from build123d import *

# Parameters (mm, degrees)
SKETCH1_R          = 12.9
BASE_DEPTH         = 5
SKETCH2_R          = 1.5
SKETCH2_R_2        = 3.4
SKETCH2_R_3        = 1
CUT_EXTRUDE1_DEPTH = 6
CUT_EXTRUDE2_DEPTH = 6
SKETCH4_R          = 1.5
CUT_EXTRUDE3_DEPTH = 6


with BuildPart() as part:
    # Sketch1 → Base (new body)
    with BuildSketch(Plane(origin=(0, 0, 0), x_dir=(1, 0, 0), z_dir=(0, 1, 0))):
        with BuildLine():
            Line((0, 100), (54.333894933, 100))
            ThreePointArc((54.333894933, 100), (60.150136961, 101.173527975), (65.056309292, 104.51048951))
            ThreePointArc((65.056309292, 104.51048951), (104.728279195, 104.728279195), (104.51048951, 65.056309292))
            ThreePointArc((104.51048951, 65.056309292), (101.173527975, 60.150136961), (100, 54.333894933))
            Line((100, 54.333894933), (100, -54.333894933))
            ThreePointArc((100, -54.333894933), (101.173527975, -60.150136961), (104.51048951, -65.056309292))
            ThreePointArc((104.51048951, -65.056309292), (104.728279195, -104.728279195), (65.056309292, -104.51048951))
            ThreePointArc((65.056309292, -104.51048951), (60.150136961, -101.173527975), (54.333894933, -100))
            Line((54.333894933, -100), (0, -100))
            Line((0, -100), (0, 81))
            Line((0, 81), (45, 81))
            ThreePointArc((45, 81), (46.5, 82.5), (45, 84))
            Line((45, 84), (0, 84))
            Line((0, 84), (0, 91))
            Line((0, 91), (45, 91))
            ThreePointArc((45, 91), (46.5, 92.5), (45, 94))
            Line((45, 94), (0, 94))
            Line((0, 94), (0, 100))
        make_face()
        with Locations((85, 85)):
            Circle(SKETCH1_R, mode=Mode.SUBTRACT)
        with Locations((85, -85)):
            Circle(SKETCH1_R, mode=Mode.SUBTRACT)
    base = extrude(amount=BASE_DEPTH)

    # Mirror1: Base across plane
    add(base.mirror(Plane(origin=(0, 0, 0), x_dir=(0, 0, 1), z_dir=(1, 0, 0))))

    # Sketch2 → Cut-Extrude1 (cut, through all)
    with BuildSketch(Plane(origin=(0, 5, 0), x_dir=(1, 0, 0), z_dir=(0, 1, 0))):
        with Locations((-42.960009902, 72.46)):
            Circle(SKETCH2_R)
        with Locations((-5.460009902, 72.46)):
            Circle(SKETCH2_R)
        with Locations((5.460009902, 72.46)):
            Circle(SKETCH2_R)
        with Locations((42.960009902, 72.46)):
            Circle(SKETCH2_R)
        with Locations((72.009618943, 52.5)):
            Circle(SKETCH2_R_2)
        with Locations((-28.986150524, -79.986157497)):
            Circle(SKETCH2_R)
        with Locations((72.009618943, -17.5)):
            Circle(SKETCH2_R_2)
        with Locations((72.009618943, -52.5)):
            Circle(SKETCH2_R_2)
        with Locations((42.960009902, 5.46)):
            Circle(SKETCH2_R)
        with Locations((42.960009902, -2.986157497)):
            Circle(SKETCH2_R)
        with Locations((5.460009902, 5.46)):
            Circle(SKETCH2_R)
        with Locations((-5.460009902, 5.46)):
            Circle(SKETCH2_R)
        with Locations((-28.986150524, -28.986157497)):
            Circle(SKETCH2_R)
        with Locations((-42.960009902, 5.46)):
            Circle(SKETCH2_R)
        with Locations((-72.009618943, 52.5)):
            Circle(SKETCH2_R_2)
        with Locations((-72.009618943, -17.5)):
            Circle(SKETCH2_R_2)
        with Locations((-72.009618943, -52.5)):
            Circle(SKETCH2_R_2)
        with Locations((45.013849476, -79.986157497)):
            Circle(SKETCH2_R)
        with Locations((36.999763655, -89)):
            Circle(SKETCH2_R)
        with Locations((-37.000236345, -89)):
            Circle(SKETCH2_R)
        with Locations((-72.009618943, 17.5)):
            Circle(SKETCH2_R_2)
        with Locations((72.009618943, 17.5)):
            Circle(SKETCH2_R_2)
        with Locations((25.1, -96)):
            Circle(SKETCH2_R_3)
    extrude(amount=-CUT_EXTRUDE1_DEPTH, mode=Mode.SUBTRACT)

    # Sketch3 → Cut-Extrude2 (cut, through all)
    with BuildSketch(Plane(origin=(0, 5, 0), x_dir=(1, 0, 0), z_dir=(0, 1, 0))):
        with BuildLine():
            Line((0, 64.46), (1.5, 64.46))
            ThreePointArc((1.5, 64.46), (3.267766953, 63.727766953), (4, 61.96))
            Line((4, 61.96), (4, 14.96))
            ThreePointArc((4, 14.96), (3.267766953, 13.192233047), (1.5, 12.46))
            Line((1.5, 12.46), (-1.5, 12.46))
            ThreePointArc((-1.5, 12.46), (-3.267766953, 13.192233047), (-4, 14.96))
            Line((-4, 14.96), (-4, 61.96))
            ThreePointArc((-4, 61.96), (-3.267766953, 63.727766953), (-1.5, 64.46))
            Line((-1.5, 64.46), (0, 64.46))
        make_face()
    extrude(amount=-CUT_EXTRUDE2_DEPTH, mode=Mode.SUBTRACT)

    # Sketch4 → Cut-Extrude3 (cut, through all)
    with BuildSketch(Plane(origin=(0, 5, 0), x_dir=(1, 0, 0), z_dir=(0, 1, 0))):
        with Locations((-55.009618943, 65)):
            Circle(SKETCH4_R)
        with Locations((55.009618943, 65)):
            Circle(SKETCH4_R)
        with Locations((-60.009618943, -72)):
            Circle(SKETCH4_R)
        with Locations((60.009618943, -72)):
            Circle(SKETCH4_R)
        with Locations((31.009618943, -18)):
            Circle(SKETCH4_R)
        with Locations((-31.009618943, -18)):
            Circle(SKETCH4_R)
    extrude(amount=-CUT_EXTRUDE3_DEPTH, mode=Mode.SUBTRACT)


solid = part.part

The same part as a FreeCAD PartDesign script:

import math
import FreeCAD as App
import Part
import Sketcher
from FreeCAD import Vector

doc = App.newDocument("Part")
params = doc.addObject("Spreadsheet::Sheet", "Params")
for row, (alias, value) in enumerate([
    ("sketch1_radius", "15 mm"),
    ("sketch1_diameter", "25.8 mm"),
    ("sketch1_radius2", "1.5 mm"),
    ("sketch1_radius3", "27.9 mm"),
    ("sketch1_width", "45 mm"),
    ("pad1_length", "5 mm"),
    ("sketch2_diameter", "3 mm"),
    ("sketch2_diameter2", "2 mm"),
    ("sketch2_diameter3", "6.8 mm"),
    ("sketch3_radius", "2.5 mm"),
    ("sketch3_width", "3 mm"),
    ("sketch3_height", "47 mm"),
    ("sketch4_diameter", "3 mm"),
], start=1):
    params.set(f"A{row}", alias)
    params.set(f"B{row}", "=" + value)
    params.setAlias(f"B{row}", alias)

body = doc.addObject("PartDesign::Body", "Body")

# Sketch on XZ plane
sketch1 = doc.addObject("Sketcher::SketchObject", "Sketch")
body.addObject(sketch1)
sketch1.AttachmentSupport = (doc.XZ_Plane, [""])
sketch1.MapMode = "FlatFace"
sketch1.addGeometry(Part.LineSegment(Vector(54.3, -100, 0), Vector(0, -100, 0)), False)
sketch1.addGeometry(Part.LineSegment(Vector(0, -100, 0), Vector(0, -94, 0)), False)
sketch1.addGeometry(Part.LineSegment(Vector(0, -94, 0), Vector(45, -94, 0)), False)
sketch1.addGeometry(Part.ArcOfCircle(Part.Circle(Vector(45, -92.5, 0), Vector(0, 0, 1), 1.5), math.radians(-90), math.radians(90)), False)
sketch1.addGeometry(Part.LineSegment(Vector(45, -91, 0), Vector(0, -91, 0)), False)
sketch1.addGeometry(Part.LineSegment(Vector(0, -91, 0), Vector(0, -84, 0)), False)
sketch1.addGeometry(Part.LineSegment(Vector(0, -84, 0), Vector(45, -84, 0)), False)
sketch1.addGeometry(Part.ArcOfCircle(Part.Circle(Vector(45, -82.5, 0), Vector(0, 0, 1), 1.5), math.radians(-90), math.radians(90)), False)
sketch1.addGeometry(Part.LineSegment(Vector(45, -81, 0), Vector(0, -81, 0)), False)
sketch1.addGeometry(Part.LineSegment(Vector(0, -81, 0), Vector(0, 100, 0)), False)
sketch1.addGeometry(Part.LineSegment(Vector(0, 100, 0), Vector(54.3, 100, 0)), False)
sketch1.addGeometry(Part.ArcOfCircle(Part.Circle(Vector(54.3, 115, 0), Vector(0, 0, 1), 15), math.radians(-90), math.radians(-44)), False)
sketch1.addGeometry(Part.ArcOfCircle(Part.Circle(Vector(85, 85, 0), Vector(0, 0, 1), 27.9), math.radians(-46), math.radians(136)), False)
sketch1.addGeometry(Part.ArcOfCircle(Part.Circle(Vector(115, 54.3, 0), Vector(0, 0, 1), 15), math.radians(134), math.radians(180)), False)
sketch1.addGeometry(Part.LineSegment(Vector(100, 54.3, 0), Vector(100, -54.3, 0)), False)
sketch1.addGeometry(Part.ArcOfCircle(Part.Circle(Vector(115, -54.3, 0), Vector(0, 0, 1), 15), math.radians(-180), math.radians(-134)), False)
sketch1.addGeometry(Part.ArcOfCircle(Part.Circle(Vector(85, -85, 0), Vector(0, 0, 1), 27.9), math.radians(-136), math.radians(46)), False)
sketch1.addGeometry(Part.ArcOfCircle(Part.Circle(Vector(54.3, -115, 0), Vector(0, 0, 1), 15), math.radians(44), math.radians(90)), False)
sketch1.addGeometry(Part.Circle(Vector(85, 85, 0), Vector(0, 0, 1), 12.9), False)
sketch1.addGeometry(Part.Circle(Vector(85, -85, 0), Vector(0, 0, 1), 12.9), False)
sketch1.addConstraint(Sketcher.Constraint("Coincident", 0, 2, 1, 1))
sketch1.addConstraint(Sketcher.Constraint("Coincident", 1, 2, 2, 1))
sketch1.addConstraint(Sketcher.Constraint("Tangent", 2, 2, 3, 1))
sketch1.addConstraint(Sketcher.Constraint("Tangent", 3, 2, 4, 1))
sketch1.addConstraint(Sketcher.Constraint("Coincident", 4, 2, 5, 1))
sketch1.addConstraint(Sketcher.Constraint("Coincident", 5, 2, 6, 1))
sketch1.addConstraint(Sketcher.Constraint("Tangent", 6, 2, 7, 1))
sketch1.addConstraint(Sketcher.Constraint("Tangent", 7, 2, 8, 1))
sketch1.addConstraint(Sketcher.Constraint("Coincident", 8, 2, 9, 1))
sketch1.addConstraint(Sketcher.Constraint("Coincident", 9, 2, 10, 1))
sketch1.addConstraint(Sketcher.Constraint("Tangent", 10, 2, 11, 1))
sketch1.addConstraint(Sketcher.Constraint("Tangent", 11, 2, 12, 2))
sketch1.addConstraint(Sketcher.Constraint("Tangent", 12, 1, 13, 1))
sketch1.addConstraint(Sketcher.Constraint("Tangent", 13, 2, 14, 1))
sketch1.addConstraint(Sketcher.Constraint("Tangent", 14, 2, 15, 1))
sketch1.addConstraint(Sketcher.Constraint("Tangent", 15, 2, 16, 2))
sketch1.addConstraint(Sketcher.Constraint("Tangent", 16, 1, 17, 1))
sketch1.addConstraint(Sketcher.Constraint("Tangent", 17, 2, 0, 1))
sketch1.addConstraint(Sketcher.Constraint("Horizontal", 0))
sketch1.addConstraint(Sketcher.Constraint("Vertical", 1))
sketch1.addConstraint(Sketcher.Constraint("Horizontal", 2))
sketch1.addConstraint(Sketcher.Constraint("Horizontal", 4))
sketch1.addConstraint(Sketcher.Constraint("Vertical", 5))
sketch1.addConstraint(Sketcher.Constraint("Horizontal", 6))
sketch1.addConstraint(Sketcher.Constraint("Horizontal", 8))
sketch1.addConstraint(Sketcher.Constraint("Vertical", 9))
sketch1.addConstraint(Sketcher.Constraint("Horizontal", 10))
sketch1.addConstraint(Sketcher.Constraint("Vertical", 14))
sketch1.addConstraint(Sketcher.Constraint("Coincident", 18, 3, 12, 3))
sketch1.addConstraint(Sketcher.Constraint("Coincident", 19, 3, 16, 3))
sketch1.addConstraint(Sketcher.Constraint("Equal", 3, 7))
sketch1.addConstraint(Sketcher.Constraint("Equal", 11, 13))
sketch1.addConstraint(Sketcher.Constraint("Equal", 13, 15))
sketch1.addConstraint(Sketcher.Constraint("Equal", 12, 16))
sketch1.addConstraint(Sketcher.Constraint("Equal", 15, 17))
sketch1.addConstraint(Sketcher.Constraint("Equal", 18, 19))
sketch1.addConstraint(Sketcher.Constraint("Symmetric", 0, 2, 9, 2, -1, 1))
sketch1.addConstraint(Sketcher.Constraint("Symmetric", 12, 3, 16, 3, -1))
sketch1.addConstraint(Sketcher.Constraint("PointOnObject", 0, 2, -2))
sketch1.addConstraint(Sketcher.Constraint("PointOnObject", 4, 2, -2))
sketch1.addConstraint(Sketcher.Constraint("Vertical", 3, 3, 7, 3))
sketch1.addConstraint(Sketcher.Constraint("Radius", 11, 15.0))
sketch1.addConstraint(Sketcher.Constraint("Diameter", 18, 25.8))
sketch1.addConstraint(Sketcher.Constraint("Radius", 3, 1.5))
sketch1.addConstraint(Sketcher.Constraint("Radius", 12, 27.9))
sketch1.addConstraint(Sketcher.Constraint("DistanceX", 2, 1, 2, 2, 45.0))
sketch1.addConstraint(Sketcher.Constraint("DistanceY", 1, 1, 1, 2, 6.0))
sketch1.addConstraint(Sketcher.Constraint("DistanceY", 5, 1, 5, 2, 7.0))
sketch1.addConstraint(Sketcher.Constraint("DistanceY", 9, 1, 9, 2, 181.0))
sketch1.addConstraint(Sketcher.Constraint("DistanceX", -1, 1, 12, 3, 85.0))
sketch1.addConstraint(Sketcher.Constraint("DistanceY", -1, 1, 12, 3, 85.0))
sketch1.addConstraint(Sketcher.Constraint("DistanceX", -1, 1, 13, 3, 115.0))
sketch1.setExpression("Constraints[41]", "Params.sketch1_radius")
sketch1.setExpression("Constraints[42]", "Params.sketch1_diameter")
sketch1.setExpression("Constraints[43]", "Params.sketch1_radius2")
sketch1.setExpression("Constraints[44]", "Params.sketch1_radius3")
sketch1.setExpression("Constraints[45]", "Params.sketch1_width")
pad1 = doc.addObject("PartDesign::Pad", "Pad")
body.addObject(pad1)
pad1.Profile = sketch1
pad1.setExpression("Length", "Params.pad1_length")
pad1.Reversed = True
doc.recompute()

mirrored = doc.addObject("PartDesign::Mirrored", "Mirrored")
body.addObject(mirrored)
mirrored.Originals = [pad1]
mirrored.MirrorPlane = (doc.YZ_Plane, [""])
body.Tip = mirrored

# Sketch on XZ plane
sketch2 = doc.addObject("Sketcher::SketchObject", "Sketch001")
body.addObject(sketch2)
sketch2.AttachmentSupport = (doc.XZ_Plane, [""])
sketch2.MapMode = "FlatFace"
sketch2.AttachmentOffset = App.Placement(Vector(0, 0, -5), App.Rotation())
sketch2.addGeometry(Part.Circle(Vector(-43, -72.5, 0), Vector(0, 0, 1), 1.5), False)
sketch2.addGeometry(Part.Circle(Vector(-5.5, -72.5, 0), Vector(0, 0, 1), 1.5), False)
sketch2.addGeometry(Part.Circle(Vector(5.5, -72.5, 0), Vector(0, 0, 1), 1.5), False)
sketch2.addGeometry(Part.Circle(Vector(43, -72.5, 0), Vector(0, 0, 1), 1.5), False)
sketch2.addGeometry(Part.Circle(Vector(72, -52.5, 0), Vector(0, 0, 1), 3.4), False)
sketch2.addGeometry(Part.Circle(Vector(-29, 80, 0), Vector(0, 0, 1), 1.5), False)
sketch2.addGeometry(Part.Circle(Vector(72, 17.5, 0), Vector(0, 0, 1), 3.4), False)
sketch2.addGeometry(Part.Circle(Vector(72, 52.5, 0), Vector(0, 0, 1), 3.4), False)
sketch2.addGeometry(Part.Circle(Vector(43, -5.5, 0), Vector(0, 0, 1), 1.5), False)
sketch2.addGeometry(Part.Circle(Vector(43, 3, 0), Vector(0, 0, 1), 1.5), False)
sketch2.addGeometry(Part.Circle(Vector(5.5, -5.5, 0), Vector(0, 0, 1), 1.5), False)
sketch2.addGeometry(Part.Circle(Vector(-5.5, -5.5, 0), Vector(0, 0, 1), 1.5), False)
sketch2.addGeometry(Part.Circle(Vector(-29, 29, 0), Vector(0, 0, 1), 1.5), False)
sketch2.addGeometry(Part.Circle(Vector(-43, -5.5, 0), Vector(0, 0, 1), 1.5), False)
sketch2.addGeometry(Part.Circle(Vector(-72, -52.5, 0), Vector(0, 0, 1), 3.4), False)
sketch2.addGeometry(Part.Circle(Vector(-72, 17.5, 0), Vector(0, 0, 1), 3.4), False)
sketch2.addGeometry(Part.Circle(Vector(-72, 52.5, 0), Vector(0, 0, 1), 3.4), False)
sketch2.addGeometry(Part.Circle(Vector(45, 80, 0), Vector(0, 0, 1), 1.5), False)
sketch2.addGeometry(Part.Circle(Vector(37, 89, 0), Vector(0, 0, 1), 1.5), False)
sketch2.addGeometry(Part.Circle(Vector(-37, 89, 0), Vector(0, 0, 1), 1.5), False)
sketch2.addGeometry(Part.Circle(Vector(-72, -17.5, 0), Vector(0, 0, 1), 3.4), False)
sketch2.addGeometry(Part.Circle(Vector(72, -17.5, 0), Vector(0, 0, 1), 3.4), False)
sketch2.addGeometry(Part.Circle(Vector(25.1, 96, 0), Vector(0, 0, 1), 1), False)
sketch2.addConstraint(Sketcher.Constraint("Equal", 0, 1))
sketch2.addConstraint(Sketcher.Constraint("Equal", 1, 2))
sketch2.addConstraint(Sketcher.Constraint("Equal", 2, 3))
sketch2.addConstraint(Sketcher.Constraint("Equal", 3, 5))
sketch2.addConstraint(Sketcher.Constraint("Equal", 4, 6))
sketch2.addConstraint(Sketcher.Constraint("Equal", 6, 7))
sketch2.addConstraint(Sketcher.Constraint("Equal", 5, 8))
sketch2.addConstraint(Sketcher.Constraint("Equal", 8, 9))
sketch2.addConstraint(Sketcher.Constraint("Equal", 9, 10))
sketch2.addConstraint(Sketcher.Constraint("Equal", 10, 11))
sketch2.addConstraint(Sketcher.Constraint("Equal", 11, 12))
sketch2.addConstraint(Sketcher.Constraint("Equal", 12, 13))
sketch2.addConstraint(Sketcher.Constraint("Equal", 7, 14))
sketch2.addConstraint(Sketcher.Constraint("Equal", 14, 15))
sketch2.addConstraint(Sketcher.Constraint("Equal", 15, 16))
sketch2.addConstraint(Sketcher.Constraint("Equal", 13, 17))
sketch2.addConstraint(Sketcher.Constraint("Equal", 17, 18))
sketch2.addConstraint(Sketcher.Constraint("Equal", 18, 19))
sketch2.addConstraint(Sketcher.Constraint("Equal", 16, 20))
sketch2.addConstraint(Sketcher.Constraint("Equal", 20, 21))
sketch2.addConstraint(Sketcher.Constraint("Symmetric", 7, 3, 14, 3, -1, 1))
sketch2.addConstraint(Sketcher.Constraint("Symmetric", 4, 3, 16, 3, -1, 1))
sketch2.addConstraint(Sketcher.Constraint("Symmetric", 6, 3, 20, 3, -1, 1))
sketch2.addConstraint(Sketcher.Constraint("Symmetric", 15, 3, 21, 3, -1, 1))
sketch2.addConstraint(Sketcher.Constraint("Symmetric", 1, 3, 2, 3, -2))
sketch2.addConstraint(Sketcher.Constraint("Symmetric", 0, 3, 3, 3, -2))
sketch2.addConstraint(Sketcher.Constraint("Symmetric", 10, 3, 11, 3, -2))
sketch2.addConstraint(Sketcher.Constraint("Symmetric", 8, 3, 13, 3, -2))
sketch2.addConstraint(Sketcher.Constraint("Symmetric", 4, 3, 14, 3, -2))
sketch2.addConstraint(Sketcher.Constraint("Symmetric", 6, 3, 15, 3, -2))
sketch2.addConstraint(Sketcher.Constraint("Horizontal", 0, 3, 1, 3))
sketch2.addConstraint(Sketcher.Constraint("Horizontal", 8, 3, 10, 3))
sketch2.addConstraint(Sketcher.Constraint("Horizontal", 5, 3, 17, 3))
sketch2.addConstraint(Sketcher.Constraint("Horizontal", 18, 3, 19, 3))
sketch2.addConstraint(Sketcher.Constraint("Vertical", 4, 3, 6, 3))
sketch2.addConstraint(Sketcher.Constraint("Vertical", 3, 3, 8, 3))
sketch2.addConstraint(Sketcher.Constraint("Vertical", 8, 3, 9, 3))
sketch2.addConstraint(Sketcher.Constraint("Vertical", 2, 3, 10, 3))
sketch2.addConstraint(Sketcher.Constraint("Vertical", 5, 3, 12, 3))
sketch2.addConstraint(Sketcher.Constraint("Diameter", 0, 3.0))
sketch2.addConstraint(Sketcher.Constraint("Diameter", 22, 2.0))
sketch2.addConstraint(Sketcher.Constraint("Diameter", 4, 6.8))
sketch2.addConstraint(Sketcher.Constraint("DistanceY", -1, 1, 18, 3, 89.0))
sketch2.addConstraint(Sketcher.Constraint("DistanceY", -1, 1, 22, 3, 96.0))
sketch2.addConstraint(Sketcher.Constraint("DistanceY", 4, 3, 6, 3, 70.0))
sketch2.addConstraint(Sketcher.Constraint("DistanceY", 6, 3, 7, 3, 35.0))
sketch2.addConstraint(Sketcher.Constraint("DistanceY", 3, 3, 8, 3, 67.0))
sketch2.addConstraint(Sketcher.Constraint("DistanceY", 12, 3, 5, 3, 51.0))
sketch2.addConstraint(Sketcher.Constraint("DistanceY", 9, 3, 12, 3, 26.0))
sketch2.addConstraint(Sketcher.Constraint("DistanceX", 5, 3, 17, 3, 74.0))
sketch2.addConstraint(Sketcher.Constraint("DistanceX", 19, 3, 18, 3, 74.0))
sketch2.addConstraint(Sketcher.Constraint("DistanceX", -1, 1, 22, 3, 25.1))
sketch2.addConstraint(Sketcher.Constraint("DistanceX", 0, 3, 1, 3, 37.5))
sketch2.addConstraint(Sketcher.Constraint("DistanceY", 0, 3, -1, 1, 72.46))
sketch2.addConstraint(Sketcher.Constraint("DistanceX", 0, 3, -1, 1, 42.96001))
sketch2.addConstraint(Sketcher.Constraint("DistanceX", -1, 1, 4, 3, 72.009619))
sketch2.addConstraint(Sketcher.Constraint("DistanceX", 5, 3, -1, 1, 28.986151))
sketch2.addConstraint(Sketcher.Constraint("DistanceY", -1, 1, 5, 3, 79.986157))
sketch2.addConstraint(Sketcher.Constraint("DistanceX", -1, 1, 18, 3, 36.999764))
sketch2.setExpression("Constraints[39]", "Params.sketch2_diameter")
sketch2.setExpression("Constraints[40]", "Params.sketch2_diameter2")
sketch2.setExpression("Constraints[41]", "Params.sketch2_diameter3")
pocket1 = doc.addObject("PartDesign::Pocket", "Pocket")
body.addObject(pocket1)
pocket1.Profile = sketch2
pocket1.Type = "ThroughAll"
pocket1.Reversed = True

# Sketch on XZ plane
sketch3 = doc.addObject("Sketcher::SketchObject", "Sketch002")
body.addObject(sketch3)
sketch3.AttachmentSupport = (doc.XZ_Plane, [""])
sketch3.MapMode = "FlatFace"
sketch3.AttachmentOffset = App.Placement(Vector(0, 0, -5), App.Rotation())
sketch3.addGeometry(Part.ArcOfCircle(Part.Circle(Vector(1.5, -62, 0), Vector(0, 0, 1), 2.5), math.radians(-90), math.radians(0)), False)
sketch3.addGeometry(Part.LineSegment(Vector(1.5, -64.5, 0), Vector(-1.5, -64.5, 0)), False)
sketch3.addGeometry(Part.ArcOfCircle(Part.Circle(Vector(-1.5, -62, 0), Vector(0, 0, 1), 2.5), math.radians(180), math.radians(270)), False)
sketch3.addGeometry(Part.LineSegment(Vector(-4, -62, 0), Vector(-4, -15, 0)), False)
sketch3.addGeometry(Part.ArcOfCircle(Part.Circle(Vector(-1.5, -15, 0), Vector(0, 0, 1), 2.5), math.radians(90), math.radians(180)), False)
sketch3.addGeometry(Part.LineSegment(Vector(-1.5, -12.5, 0), Vector(1.5, -12.5, 0)), False)
sketch3.addGeometry(Part.ArcOfCircle(Part.Circle(Vector(1.5, -15, 0), Vector(0, 0, 1), 2.5), math.radians(0), math.radians(90)), False)
sketch3.addGeometry(Part.LineSegment(Vector(4, -15, 0), Vector(4, -62, 0)), False)
sketch3.addConstraint(Sketcher.Constraint("Tangent", 0, 1, 1, 1))
sketch3.addConstraint(Sketcher.Constraint("Tangent", 1, 2, 2, 2))
sketch3.addConstraint(Sketcher.Constraint("Tangent", 2, 1, 3, 1))
sketch3.addConstraint(Sketcher.Constraint("Tangent", 3, 2, 4, 2))
sketch3.addConstraint(Sketcher.Constraint("Tangent", 4, 1, 5, 1))
sketch3.addConstraint(Sketcher.Constraint("Tangent", 5, 2, 6, 2))
sketch3.addConstraint(Sketcher.Constraint("Tangent", 6, 1, 7, 1))
sketch3.addConstraint(Sketcher.Constraint("Tangent", 7, 2, 0, 2))
sketch3.addConstraint(Sketcher.Constraint("Horizontal", 1))
sketch3.addConstraint(Sketcher.Constraint("Vertical", 3))
sketch3.addConstraint(Sketcher.Constraint("Horizontal", 5))
sketch3.addConstraint(Sketcher.Constraint("Vertical", 7))
sketch3.addConstraint(Sketcher.Constraint("Equal", 0, 2))
sketch3.addConstraint(Sketcher.Constraint("Equal", 2, 4))
sketch3.addConstraint(Sketcher.Constraint("Equal", 4, 6))
sketch3.addConstraint(Sketcher.Constraint("Radius", 0, 2.5))
sketch3.addConstraint(Sketcher.Constraint("DistanceX", 1, 2, 1, 1, 3.0))
sketch3.addConstraint(Sketcher.Constraint("DistanceY", 3, 1, 3, 2, 47.0))
sketch3.addConstraint(Sketcher.Constraint("DistanceX", 2, 1, -1, 1, 4.0))
sketch3.addConstraint(Sketcher.Constraint("DistanceY", 0, 3, -1, 1, 61.96))
sketch3.setExpression("Constraints[15]", "Params.sketch3_radius")
sketch3.setExpression("Constraints[16]", "Params.sketch3_width")
sketch3.setExpression("Constraints[17]", "Params.sketch3_height")
pocket2 = doc.addObject("PartDesign::Pocket", "Pocket001")
body.addObject(pocket2)
pocket2.Profile = sketch3
pocket2.Type = "ThroughAll"
pocket2.Reversed = True

# Sketch on XZ plane
sketch4 = doc.addObject("Sketcher::SketchObject", "Sketch003")
body.addObject(sketch4)
sketch4.AttachmentSupport = (doc.XZ_Plane, [""])
sketch4.MapMode = "FlatFace"
sketch4.AttachmentOffset = App.Placement(Vector(0, 0, -5), App.Rotation())
sketch4.addGeometry(Part.Circle(Vector(-55, -65, 0), Vector(0, 0, 1), 1.5), False)
sketch4.addGeometry(Part.Circle(Vector(55, -65, 0), Vector(0, 0, 1), 1.5), False)
sketch4.addGeometry(Part.Circle(Vector(-60, 72, 0), Vector(0, 0, 1), 1.5), False)
sketch4.addGeometry(Part.Circle(Vector(60, 72, 0), Vector(0, 0, 1), 1.5), False)
sketch4.addGeometry(Part.Circle(Vector(31, 18, 0), Vector(0, 0, 1), 1.5), False)
sketch4.addGeometry(Part.Circle(Vector(-31, 18, 0), Vector(0, 0, 1), 1.5), False)
sketch4.addConstraint(Sketcher.Constraint("Equal", 0, 1))
sketch4.addConstraint(Sketcher.Constraint("Equal", 1, 2))
sketch4.addConstraint(Sketcher.Constraint("Equal", 2, 3))
sketch4.addConstraint(Sketcher.Constraint("Equal", 3, 4))
sketch4.addConstraint(Sketcher.Constraint("Equal", 4, 5))
sketch4.addConstraint(Sketcher.Constraint("Symmetric", 0, 3, 1, 3, -2))
sketch4.addConstraint(Sketcher.Constraint("Symmetric", 2, 3, 3, 3, -2))
sketch4.addConstraint(Sketcher.Constraint("Symmetric", 4, 3, 5, 3, -2))
sketch4.addConstraint(Sketcher.Constraint("Diameter", 0, 3.0))
sketch4.addConstraint(Sketcher.Constraint("DistanceY", 0, 3, -1, 1, 65.0))
sketch4.addConstraint(Sketcher.Constraint("DistanceY", -1, 1, 2, 3, 72.0))
sketch4.addConstraint(Sketcher.Constraint("DistanceY", -1, 1, 4, 3, 18.0))
sketch4.addConstraint(Sketcher.Constraint("DistanceX", 2, 3, 0, 3, 5.0))
sketch4.addConstraint(Sketcher.Constraint("DistanceX", 4, 3, 3, 3, 29.0))
sketch4.addConstraint(Sketcher.Constraint("DistanceX", 0, 3, -1, 1, 55.009619))
sketch4.setExpression("Constraints[8]", "Params.sketch4_diameter")
pocket3 = doc.addObject("PartDesign::Pocket", "Pocket002")
body.addObject(pocket3)
pocket3.Profile = sketch4
pocket3.Type = "ThroughAll"
pocket3.Reversed = True

doc.recompute()
